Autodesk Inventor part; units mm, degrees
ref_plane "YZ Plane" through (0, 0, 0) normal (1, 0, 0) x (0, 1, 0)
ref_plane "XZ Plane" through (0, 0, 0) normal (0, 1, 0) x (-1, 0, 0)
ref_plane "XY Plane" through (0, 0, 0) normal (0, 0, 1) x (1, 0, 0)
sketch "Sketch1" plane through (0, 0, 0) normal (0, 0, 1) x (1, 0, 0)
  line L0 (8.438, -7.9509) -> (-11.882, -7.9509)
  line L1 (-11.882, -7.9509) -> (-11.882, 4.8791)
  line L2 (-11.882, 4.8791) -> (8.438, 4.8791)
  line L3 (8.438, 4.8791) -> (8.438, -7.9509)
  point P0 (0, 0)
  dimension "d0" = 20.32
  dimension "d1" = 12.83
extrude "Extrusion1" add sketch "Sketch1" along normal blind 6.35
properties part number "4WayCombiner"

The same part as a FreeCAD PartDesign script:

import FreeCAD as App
import Part
import Sketcher
from FreeCAD import Vector
Q = App.Units.Quantity


def add_polygon(sketch, points):
    """Adds a closed chain of lines whose ends are joined by coincident constraints."""
    first, n = sketch.GeometryCount, len(points)
    for a, b in zip(points, points[1:] + points[:1]):
        sketch.addGeometry(Part.LineSegment(App.Vector(*a, 0), App.Vector(*b, 0)), False)
    for i in range(n):
        sketch.addConstraint(Sketcher.Constraint("Coincident", first + i, 2, first + (i + 1) % n, 1))

doc = App.newDocument("Part")
body = doc.addObject("PartDesign::Body", "Body")

# Sketch on XY plane
sketch1 = body.newObject("Sketcher::SketchObject", "Sketch")
sketch1.AttachmentSupport = (doc.getObject("XY_Plane"), [""])
sketch1.MapMode = "FlatFace"
add_polygon(sketch1, [(-12, -8), (8, -8), (8, 5), (-12, 5)])  # lines 0-3
sketch1.addConstraint(Sketcher.Constraint("Horizontal", 0))
sketch1.addConstraint(Sketcher.Constraint("Vertical", 1))
sketch1.addConstraint(Sketcher.Constraint("Horizontal", 2))
sketch1.addConstraint(Sketcher.Constraint("Vertical", 3))
sketch1.addConstraint(Sketcher.Constraint("DistanceX", 0, 1, 0, 2, Q("0.8 in")))
sketch1.addConstraint(Sketcher.Constraint("DistanceY", 1, 1, 1, 2, 12.83))
sketch1.addConstraint(Sketcher.Constraint("DistanceX", -1, 1, 0, 2, Q("0.3322 in")))
sketch1.addConstraint(Sketcher.Constraint("DistanceY", -1, 1, 1, 2, Q("0.1921 in")))
pad1 = body.newObject("PartDesign::Pad", "Pad")
pad1.Profile = sketch1
pad1.Length = Q("0.25 in")

doc.recompute()
